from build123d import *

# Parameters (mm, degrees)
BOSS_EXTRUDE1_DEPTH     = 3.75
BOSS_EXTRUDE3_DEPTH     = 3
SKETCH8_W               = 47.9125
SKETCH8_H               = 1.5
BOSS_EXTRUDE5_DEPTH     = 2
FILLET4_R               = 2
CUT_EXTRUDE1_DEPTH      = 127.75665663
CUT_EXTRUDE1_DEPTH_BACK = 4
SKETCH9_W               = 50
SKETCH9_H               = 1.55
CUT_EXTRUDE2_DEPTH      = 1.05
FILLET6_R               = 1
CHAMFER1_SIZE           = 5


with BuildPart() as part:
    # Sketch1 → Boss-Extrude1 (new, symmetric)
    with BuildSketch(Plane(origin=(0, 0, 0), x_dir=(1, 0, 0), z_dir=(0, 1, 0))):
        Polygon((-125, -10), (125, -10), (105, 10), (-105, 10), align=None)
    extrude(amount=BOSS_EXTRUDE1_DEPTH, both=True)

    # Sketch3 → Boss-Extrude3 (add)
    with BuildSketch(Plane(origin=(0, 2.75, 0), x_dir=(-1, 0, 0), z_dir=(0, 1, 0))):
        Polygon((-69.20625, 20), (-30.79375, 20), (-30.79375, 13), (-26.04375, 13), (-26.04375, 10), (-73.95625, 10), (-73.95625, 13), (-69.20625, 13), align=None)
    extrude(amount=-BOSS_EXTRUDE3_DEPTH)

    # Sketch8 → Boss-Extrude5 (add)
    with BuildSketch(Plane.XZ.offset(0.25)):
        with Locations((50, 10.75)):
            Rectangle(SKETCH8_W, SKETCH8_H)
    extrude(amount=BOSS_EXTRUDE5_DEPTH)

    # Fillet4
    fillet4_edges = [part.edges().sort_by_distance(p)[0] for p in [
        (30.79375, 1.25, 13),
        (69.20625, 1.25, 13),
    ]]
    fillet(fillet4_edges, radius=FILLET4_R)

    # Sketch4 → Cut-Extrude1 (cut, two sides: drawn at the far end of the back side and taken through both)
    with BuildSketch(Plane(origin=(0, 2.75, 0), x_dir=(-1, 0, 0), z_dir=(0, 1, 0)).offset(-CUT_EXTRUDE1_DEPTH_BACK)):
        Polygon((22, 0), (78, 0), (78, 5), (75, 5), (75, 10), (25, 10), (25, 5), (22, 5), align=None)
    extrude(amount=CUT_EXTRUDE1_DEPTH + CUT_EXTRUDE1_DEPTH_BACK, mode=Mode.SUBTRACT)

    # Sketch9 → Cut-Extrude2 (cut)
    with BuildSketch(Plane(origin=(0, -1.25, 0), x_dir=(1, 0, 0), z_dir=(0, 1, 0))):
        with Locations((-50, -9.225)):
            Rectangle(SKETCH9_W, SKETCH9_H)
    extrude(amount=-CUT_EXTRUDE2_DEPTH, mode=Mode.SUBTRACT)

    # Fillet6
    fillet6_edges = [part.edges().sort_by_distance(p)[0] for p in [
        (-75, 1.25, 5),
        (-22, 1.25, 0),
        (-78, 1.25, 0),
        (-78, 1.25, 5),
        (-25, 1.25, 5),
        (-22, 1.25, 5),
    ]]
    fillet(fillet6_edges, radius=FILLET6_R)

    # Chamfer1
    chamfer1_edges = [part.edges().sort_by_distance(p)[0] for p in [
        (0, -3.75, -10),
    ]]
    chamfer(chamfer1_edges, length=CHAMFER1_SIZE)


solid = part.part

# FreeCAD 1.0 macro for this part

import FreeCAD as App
import Part
import Sketcher
from FreeCAD import Vector
Q = App.Units.Quantity


def edges_at(feature, points):
    """Names of the edges that pass closest to the given points."""
    edges = feature.Shape.Edges
    near = lambda p: min(range(len(edges)), key=lambda i: edges[i].distToShape(Part.Vertex(*p))[0])
    return sorted({f"Edge{near(p) + 1}" for p in points})

doc = App.newDocument("Part")
params = doc.addObject("Spreadsheet::Sheet", "Params")
for row, (alias, value) in enumerate([
    ("sketch1_width", "250 mm"),
    ("sketch1_width2", "210 mm"),
    ("pad1_length", "7.5 mm"),
    ("sketch2_height", "7 mm"),
    ("sketch2_height2", "3 mm"),
    ("sketch2_width", "4.75 mm"),
    ("pad2_length", "3 mm"),
    ("sketch3_height", "1.5 mm"),
    ("pad3_length", "2 mm"),
    ("fillet_radius", "2 mm"),
    ("sketch4_width", "56 mm"),
    ("sketch4_width2", "3 mm"),
    ("sketch4_height", "5 mm"),
    ("pocket1_length", "127.756657 mm"),
    ("pocket1_length2", "4 mm"),
    ("sketch5_width", "50 mm"),
    ("sketch5_height", "1.55 mm"),
    ("pocket2_length", "1.05 mm"),
    ("fillet2_radius", "1 mm"),
    ("chamfer_size", "5 mm"),
], start=1):
    params.set(f"A{row}", alias)
    params.set(f"B{row}", "=" + value)
    params.setAlias(f"B{row}", alias)

body = doc.addObject("PartDesign::Body", "Body")

# Sketch on XZ plane
sketch1 = body.newObject("Sketcher::SketchObject", "Sketch")
sketch1.AttachmentSupport = (doc.getObject("XZ_Plane"), [""])
sketch1.MapMode = "FlatFace"
sketch1.addGeometry(Part.LineSegment(Vector(-125, 10, 0), Vector(125, 10, 0)), False)
sketch1.addGeometry(Part.LineSegment(Vector(125, 10, 0), Vector(105, -10, 0)), False)
sketch1.addGeometry(Part.LineSegment(Vector(105, -10, 0), Vector(-105, -10, 0)), False)
sketch1.addGeometry(Part.LineSegment(Vector(-105, -10, 0), Vector(-125, 10, 0)), False)
sketch1.addConstraint(Sketcher.Constraint("Coincident", 0, 2, 1, 1))
sketch1.addConstraint(Sketcher.Constraint("Coincident", 1, 2, 2, 1))
sketch1.addConstraint(Sketcher.Constraint("Coincident", 2, 2, 3, 1))
sketch1.addConstraint(Sketcher.Constraint("Coincident", 3, 2, 0, 1))
sketch1.addConstraint(Sketcher.Constraint("Horizontal", 0))
sketch1.addConstraint(Sketcher.Constraint("Horizontal", 2))
sketch1.addConstraint(Sketcher.Constraint("Perpendicular", 1, 3))
sketch1.addConstraint(Sketcher.Constraint("Equal", 1, 3))
sketch1.addConstraint(Sketcher.Constraint("DistanceX", 0, 1, 0, 2, Q("250 mm")))
sketch1.addConstraint(Sketcher.Constraint("DistanceX", 2, 2, 2, 1, Q("210 mm")))
sketch1.addConstraint(Sketcher.Constraint("DistanceX", -1, 1, 0, 2, Q("125 mm")))
sketch1.addConstraint(Sketcher.Constraint("DistanceY", -1, 1, 0, 2, Q("10 mm")))
sketch1.setExpression("Constraints[8]", "Params.sketch1_width")
sketch1.setExpression("Constraints[9]", "Params.sketch1_width2")
pad1 = body.newObject("PartDesign::Pad", "Pad")
pad1.Profile = sketch1
pad1.setExpression("Length", "Params.pad1_length")
pad1.Midplane = True

# Sketch on XZ plane
sketch2 = body.newObject("Sketcher::SketchObject", "Sketch001")
sketch2.AttachmentSupport = (doc.getObject("XZ_Plane"), [""])
sketch2.MapMode = "FlatFace"
sketch2.AttachmentOffset = App.Placement(Vector(0, 0, -2.75), App.Rotation())
sketch2.addGeometry(Part.LineSegment(Vector(30.8, 20, 0), Vector(69.2, 20, 0)), False)
sketch2.addGeometry(Part.LineSegment(Vector(69.2, 20, 0), Vector(69.2, 13, 0)), False)
sketch2.addGeometry(Part.LineSegment(Vector(69.2, 13, 0), Vector(74, 13, 0)), False)
sketch2.addGeometry(Part.LineSegment(Vector(74, 13, 0), Vector(74, 10, 0)), False)
sketch2.addGeometry(Part.LineSegment(Vector(74, 10, 0), Vector(26, 10, 0)), False)
sketch2.addGeometry(Part.LineSegment(Vector(26, 10, 0), Vector(26, 13, 0)), False)
sketch2.addGeometry(Part.LineSegment(Vector(26, 13, 0), Vector(30.8, 13, 0)), False)
sketch2.addGeometry(Part.LineSegment(Vector(30.8, 13, 0), Vector(30.8, 20, 0)), False)
sketch2.addConstraint(Sketcher.Constraint("Coincident", 0, 2, 1, 1))
sketch2.addConstraint(Sketcher.Constraint("Coincident", 1, 2, 2, 1))
sketch2.addConstraint(Sketcher.Constraint("Coincident", 2, 2, 3, 1))
sketch2.addConstraint(Sketcher.Constraint("Coincident", 3, 2, 4, 1))
sketch2.addConstraint(Sketcher.Constraint("Coincident", 4, 2, 5, 1))
sketch2.addConstraint(Sketcher.Constraint("Coincident", 5, 2, 6, 1))
sketch2.addConstraint(Sketcher.Constraint("Coincident", 6, 2, 7, 1))
sketch2.addConstraint(Sketcher.Constraint("Coincident", 7, 2, 0, 1))
sketch2.addConstraint(Sketcher.Constraint("Horizontal", 0))
sketch2.addConstraint(Sketcher.Constraint("Vertical", 1))
sketch2.addConstraint(Sketcher.Constraint("Horizontal", 2))
sketch2.addConstraint(Sketcher.Constraint("Vertical", 3))
sketch2.addConstraint(Sketcher.Constraint("Horizontal", 4))
sketch2.addConstraint(Sketcher.Constraint("Vertical", 5))
sketch2.addConstraint(Sketcher.Constraint("Horizontal", 6))
sketch2.addConstraint(Sketcher.Constraint("Vertical", 7))
sketch2.addConstraint(Sketcher.Constraint("Horizontal", 2, 2, 5, 2))
sketch2.addConstraint(Sketcher.Constraint("Equal", 2, 6))
sketch2.addConstraint(Sketcher.Constraint("DistanceY", 1, 2, 1, 1, Q("7 mm")))
sketch2.addConstraint(Sketcher.Constraint("DistanceY", 3, 2, 3, 1, Q("3 mm")))
sketch2.addConstraint(Sketcher.Constraint("DistanceY", -1, 1, 0, 2, Q("20 mm")))
sketch2.addConstraint(Sketcher.Constraint("DistanceX", 2, 1, 2, 2, Q("4.75 mm")))
sketch2.addConstraint(Sketcher.Constraint("DistanceX", 0, 1, 0, 2, Q("38.4125 mm")))
sketch2.addConstraint(Sketcher.Constraint("DistanceX", -1, 1, 0, 2, Q("69.20625 mm")))
sketch2.setExpression("Constraints[18]", "Params.sketch2_height")
sketch2.setExpression("Constraints[19]", "Params.sketch2_height2")
sketch2.setExpression("Constraints[21]", "Params.sketch2_width")
pad2 = body.newObject("PartDesign::Pad", "Pad001")
pad2.Profile = sketch2
pad2.setExpression("Length", "Params.pad2_length")

# Sketch on XZ plane
sketch3 = body.newObject("Sketcher::SketchObject", "Sketch002")
sketch3.AttachmentSupport = (doc.getObject("XZ_Plane"), [""])
sketch3.MapMode = "FlatFace"
sketch3.AttachmentOffset = App.Placement(Vector(0, 0, 0.25), App.Rotation())
sketch3.addGeometry(Part.LineSegment(Vector(26, 11.5, 0), Vector(26, 10, 0)), False)
sketch3.addGeometry(Part.LineSegment(Vector(26, 10, 0), Vector(74, 10, 0)), False)
sketch3.addGeometry(Part.LineSegment(Vector(74, 10, 0), Vector(74, 11.5, 0)), False)
sketch3.addGeometry(Part.LineSegment(Vector(74, 11.5, 0), Vector(26, 11.5, 0)), False)
sketch3.addConstraint(Sketcher.Constraint("Coincident", 0, 2, 1, 1))
sketch3.addConstraint(Sketcher.Constraint("Coincident", 1, 2, 2, 1))
sketch3.addConstraint(Sketcher.Constraint("Coincident", 2, 2, 3, 1))
sketch3.addConstraint(Sketcher.Constraint("Coincident", 3, 2, 0, 1))
sketch3.addConstraint(Sketcher.Constraint("Vertical", 0))
sketch3.addConstraint(Sketcher.Constraint("Horizontal", 1))
sketch3.addConstraint(Sketcher.Constraint("Vertical", 2))
sketch3.addConstraint(Sketcher.Constraint("Horizontal", 3))
sketch3.addConstraint(Sketcher.Constraint("DistanceY", 0, 2, 0, 1, Q("1.5 mm")))
sketch3.addConstraint(Sketcher.Constraint("DistanceY", -1, 1, 0, 2, Q("10 mm")))
sketch3.addConstraint(Sketcher.Constraint("DistanceX", 1, 1, 1, 2, Q("47.9125 mm")))
sketch3.addConstraint(Sketcher.Constraint("DistanceX", -1, 1, 0, 2, Q("26.04375 mm")))
sketch3.setExpression("Constraints[8]", "Params.sketch3_height")
pad3 = body.newObject("PartDesign::Pad", "Pad002")
pad3.Profile = sketch3
pad3.setExpression("Length", "Params.pad3_length")
doc.recompute()

fillet = body.newObject("PartDesign::Fillet", "Fillet")
fillet.Base = (pad3, edges_at(pad3, [(30.794, 1.25, 13), (69.206, 1.25, 13)]))
fillet.setExpression("Radius", "Params.fillet_radius")

# Sketch on XZ plane
sketch4 = body.newObject("Sketcher::SketchObject", "Sketch003")
sketch4.AttachmentSupport = (doc.getObject("XZ_Plane"), [""])
sketch4.MapMode = "FlatFace"
sketch4.AttachmentOffset = App.Placement(Vector(0, 0, -2.75), App.Rotation())
sketch4.addGeometry(Part.LineSegment(Vector(-22, 0, 0), Vector(-78, 0, 0)), False)
sketch4.addGeometry(Part.LineSegment(Vector(-78, 0, 0), Vector(-78, 5, 0)), False)
sketch4.addGeometry(Part.LineSegment(Vector(-78, 5, 0), Vector(-75, 5, 0)), False)
sketch4.addGeometry(Part.LineSegment(Vector(-75, 5, 0), Vector(-75, 10, 0)), False)
sketch4.addGeometry(Part.LineSegment(Vector(-75, 10, 0), Vector(-25, 10, 0)), False)
sketch4.addGeometry(Part.LineSegment(Vector(-25, 10, 0), Vector(-25, 5, 0)), False)
sketch4.addGeometry(Part.LineSegment(Vector(-25, 5, 0), Vector(-22, 5, 0)), False)
sketch4.addGeometry(Part.LineSegment(Vector(-22, 5, 0), Vector(-22, 0, 0)), False)
sketch4.addConstraint(Sketcher.Constraint("Coincident", 0, 2, 1, 1))
sketch4.addConstraint(Sketcher.Constraint("Coincident", 1, 2, 2, 1))
sketch4.addConstraint(Sketcher.Constraint("Coincident", 2, 2, 3, 1))
sketch4.addConstraint(Sketcher.Constraint("Coincident", 3, 2, 4, 1))
sketch4.addConstraint(Sketcher.Constraint("Coincident", 4, 2, 5, 1))
sketch4.addConstraint(Sketcher.Constraint("Coincident", 5, 2, 6, 1))
sketch4.addConstraint(Sketcher.Constraint("Coincident", 6, 2, 7, 1))
sketch4.addConstraint(Sketcher.Constraint("Coincident", 7, 2, 0, 1))
sketch4.addConstraint(Sketcher.Constraint("Horizontal", 0))
sketch4.addConstraint(Sketcher.Constraint("Vertical", 1))
sketch4.addConstraint(Sketcher.Constraint("Horizontal", 2))
sketch4.addConstraint(Sketcher.Constraint("Vertical", 3))
sketch4.addConstraint(Sketcher.Constraint("Horizontal", 4))
sketch4.addConstraint(Sketcher.Constraint("Vertical", 5))
sketch4.addConstraint(Sketcher.Constraint("Horizontal", 6))
sketch4.addConstraint(Sketcher.Constraint("Vertical", 7))
sketch4.addConstraint(Sketcher.Constraint("PointOnObject", 0, 2, -1))
sketch4.addConstraint(Sketcher.Constraint("Horizontal", 2, 2, 5, 2))
sketch4.addConstraint(Sketcher.Constraint("Equal", 2, 6))
sketch4.addConstraint(Sketcher.Constraint("Equal", 1, 3))
sketch4.addConstraint(Sketcher.Constraint("DistanceX", 0, 2, 0, 1, Q("56 mm")))
sketch4.addConstraint(Sketcher.Constraint("DistanceX", 2, 1, 2, 2, Q("3 mm")))
sketch4.addConstraint(Sketcher.Constraint("DistanceY", 1, 1, 1, 2, Q("5 mm")))
sketch4.addConstraint(Sketcher.Constraint("DistanceX", 0, 2, -1, 1, Q("78 mm")))
sketch4.setExpression("Constraints[20]", "Params.sketch4_width")
sketch4.setExpression("Constraints[21]", "Params.sketch4_width2")
sketch4.setExpression("Constraints[22]", "Params.sketch4_height")
pocket1 = body.newObject("PartDesign::Pocket", "Pocket")
pocket1.Profile = sketch4
pocket1.Type = "TwoLengths"
pocket1.setExpression("Length", "Params.pocket1_length")
pocket1.setExpression("Length2", "Params.pocket1_length2")

# Sketch on XZ plane
sketch5 = body.newObject("Sketcher::SketchObject", "Sketch004")
sketch5.AttachmentSupport = (doc.getObject("XZ_Plane"), [""])
sketch5.MapMode = "FlatFace"
sketch5.AttachmentOffset = App.Placement(Vector(0, 0, 1.25), App.Rotation())
sketch5.addGeometry(Part.LineSegment(Vector(-75, 8.4, 0), Vector(-75, 10, 0)), False)
sketch5.addGeometry(Part.LineSegment(Vector(-75, 10, 0), Vector(-25, 10, 0)), False)
sketch5.addGeometry(Part.LineSegment(Vector(-25, 10, 0), Vector(-25, 8.4, 0)), False)
sketch5.addGeometry(Part.LineSegment(Vector(-25, 8.4, 0), Vector(-75, 8.4, 0)), False)
sketch5.addConstraint(Sketcher.Constraint("Coincident", 0, 2, 1, 1))
sketch5.addConstraint(Sketcher.Constraint("Coincident", 1, 2, 2, 1))
sketch5.addConstraint(Sketcher.Constraint("Coincident", 2, 2, 3, 1))
sketch5.addConstraint(Sketcher.Constraint("Coincident", 3, 2, 0, 1))
sketch5.addConstraint(Sketcher.Constraint("Vertical", 0))
sketch5.addConstraint(Sketcher.Constraint("Horizontal", 1))
sketch5.addConstraint(Sketcher.Constraint("Vertical", 2))
sketch5.addConstraint(Sketcher.Constraint("Horizontal", 3))
sketch5.addConstraint(Sketcher.Constraint("DistanceX", 1, 1, 1, 2, Q("50 mm")))
sketch5.addConstraint(Sketcher.Constraint("DistanceX", 0, 2, -1, 1, Q("75 mm")))
sketch5.addConstraint(Sketcher.Constraint("DistanceY", -1, 1, 0, 2, Q("10 mm")))
sketch5.addConstraint(Sketcher.Constraint("DistanceY", 0, 1, 0, 2, Q("1.55 mm")))
sketch5.setExpression("Constraints[8]", "Params.sketch5_width")
sketch5.setExpression("Constraints[11]", "Params.sketch5_height")
pocket2 = body.newObject("PartDesign::Pocket", "Pocket001")
pocket2.Profile = sketch5
pocket2.setExpression("Length", "Params.pocket2_length")
pocket2.Reversed = True
doc.recompute()

fillet2 = body.newObject("PartDesign::Fillet", "Fillet001")
fillet2.Base = (pocket2, edges_at(pocket2, [
    (-75, 1.25, 5),
    (-22, 1.25, 0),
    (-78, 1.25, 0),
    (-78, 1.25, 5),
    (-25, 1.25, 5),
    (-22, 1.25, 5),
]))
fillet2.setExpression("Radius", "Params.fillet2_radius")
doc.recompute()

chamfer = body.newObject("PartDesign::Chamfer", "Chamfer")
chamfer.Base = (fillet2, edges_at(fillet2, [(0, -3.75, -10)]))
chamfer.setExpression("Size", "Params.chamfer_size")

doc.recompute()
